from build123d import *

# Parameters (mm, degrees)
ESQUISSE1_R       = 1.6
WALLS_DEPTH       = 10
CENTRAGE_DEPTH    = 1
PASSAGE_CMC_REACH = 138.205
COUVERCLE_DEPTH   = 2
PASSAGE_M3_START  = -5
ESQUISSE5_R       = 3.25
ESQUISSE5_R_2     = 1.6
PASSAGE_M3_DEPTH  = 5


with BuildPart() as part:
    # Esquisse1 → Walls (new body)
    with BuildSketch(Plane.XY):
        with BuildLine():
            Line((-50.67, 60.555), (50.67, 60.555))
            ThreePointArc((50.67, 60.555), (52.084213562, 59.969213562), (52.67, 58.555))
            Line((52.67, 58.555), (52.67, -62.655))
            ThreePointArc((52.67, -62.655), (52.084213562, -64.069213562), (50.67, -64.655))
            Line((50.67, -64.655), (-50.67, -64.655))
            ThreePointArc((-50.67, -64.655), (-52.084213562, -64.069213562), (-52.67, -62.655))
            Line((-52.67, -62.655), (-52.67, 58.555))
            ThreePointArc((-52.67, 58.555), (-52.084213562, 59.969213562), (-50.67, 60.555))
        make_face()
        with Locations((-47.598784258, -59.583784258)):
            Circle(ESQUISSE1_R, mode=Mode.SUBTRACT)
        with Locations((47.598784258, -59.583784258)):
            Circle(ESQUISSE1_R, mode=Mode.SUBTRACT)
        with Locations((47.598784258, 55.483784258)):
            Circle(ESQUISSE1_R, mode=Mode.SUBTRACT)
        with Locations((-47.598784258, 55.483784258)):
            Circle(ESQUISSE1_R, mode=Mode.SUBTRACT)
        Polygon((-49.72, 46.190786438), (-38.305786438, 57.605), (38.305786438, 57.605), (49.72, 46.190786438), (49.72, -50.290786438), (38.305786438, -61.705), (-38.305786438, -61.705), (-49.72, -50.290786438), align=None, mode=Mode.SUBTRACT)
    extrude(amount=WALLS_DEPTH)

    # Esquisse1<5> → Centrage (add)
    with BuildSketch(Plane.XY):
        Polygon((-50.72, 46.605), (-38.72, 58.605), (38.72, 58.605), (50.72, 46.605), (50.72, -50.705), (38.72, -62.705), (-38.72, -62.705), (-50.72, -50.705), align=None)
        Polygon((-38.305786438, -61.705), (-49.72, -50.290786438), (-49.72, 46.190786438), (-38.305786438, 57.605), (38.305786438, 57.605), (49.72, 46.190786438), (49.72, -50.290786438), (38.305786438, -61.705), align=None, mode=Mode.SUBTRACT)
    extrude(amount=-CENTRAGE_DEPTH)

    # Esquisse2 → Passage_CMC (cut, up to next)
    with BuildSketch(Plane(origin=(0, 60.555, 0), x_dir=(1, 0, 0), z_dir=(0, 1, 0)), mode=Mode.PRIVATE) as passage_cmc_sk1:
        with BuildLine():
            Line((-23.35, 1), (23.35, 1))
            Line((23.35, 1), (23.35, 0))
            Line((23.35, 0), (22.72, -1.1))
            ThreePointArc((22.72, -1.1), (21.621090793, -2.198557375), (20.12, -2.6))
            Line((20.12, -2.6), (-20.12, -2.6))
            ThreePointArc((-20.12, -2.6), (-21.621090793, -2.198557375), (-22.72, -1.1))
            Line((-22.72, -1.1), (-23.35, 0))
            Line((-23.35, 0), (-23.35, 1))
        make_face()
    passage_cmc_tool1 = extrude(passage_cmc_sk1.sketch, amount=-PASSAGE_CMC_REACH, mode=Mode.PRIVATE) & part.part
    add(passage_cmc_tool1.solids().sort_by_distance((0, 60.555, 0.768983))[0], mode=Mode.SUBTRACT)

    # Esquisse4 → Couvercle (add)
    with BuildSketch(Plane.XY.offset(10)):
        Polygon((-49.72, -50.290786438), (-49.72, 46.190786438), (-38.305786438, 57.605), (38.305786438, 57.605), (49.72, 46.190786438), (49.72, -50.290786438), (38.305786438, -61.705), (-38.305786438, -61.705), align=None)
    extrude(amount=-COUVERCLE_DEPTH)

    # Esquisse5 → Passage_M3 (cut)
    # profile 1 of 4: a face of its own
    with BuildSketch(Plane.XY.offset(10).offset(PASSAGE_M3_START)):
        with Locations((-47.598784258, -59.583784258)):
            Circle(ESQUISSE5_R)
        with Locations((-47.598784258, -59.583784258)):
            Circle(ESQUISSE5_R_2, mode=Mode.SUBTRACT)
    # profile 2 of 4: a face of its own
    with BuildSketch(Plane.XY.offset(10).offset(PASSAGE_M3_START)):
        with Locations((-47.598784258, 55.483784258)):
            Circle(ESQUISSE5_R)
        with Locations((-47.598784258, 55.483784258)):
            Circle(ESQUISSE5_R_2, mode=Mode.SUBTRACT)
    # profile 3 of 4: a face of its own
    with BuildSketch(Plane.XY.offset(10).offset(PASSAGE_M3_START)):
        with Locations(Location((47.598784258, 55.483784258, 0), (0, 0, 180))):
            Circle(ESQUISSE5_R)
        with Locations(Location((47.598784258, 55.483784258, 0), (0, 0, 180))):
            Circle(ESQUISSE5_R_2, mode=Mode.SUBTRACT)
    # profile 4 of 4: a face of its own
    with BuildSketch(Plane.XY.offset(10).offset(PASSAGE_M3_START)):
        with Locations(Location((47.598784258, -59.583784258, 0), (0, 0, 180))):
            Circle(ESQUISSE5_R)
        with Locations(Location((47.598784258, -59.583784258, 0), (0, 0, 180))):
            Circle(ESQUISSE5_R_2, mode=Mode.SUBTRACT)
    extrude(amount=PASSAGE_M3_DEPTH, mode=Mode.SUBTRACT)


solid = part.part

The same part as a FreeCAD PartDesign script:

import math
import FreeCAD as App
import Part
import Sketcher
from FreeCAD import Vector
Q = App.Units.Quantity

doc = App.newDocument("Part")
body = doc.addObject("PartDesign::Body", "Body")

# Sketch on XY plane
sketch1 = body.newObject("Sketcher::SketchObject", "Sketch")
sketch1.AttachmentSupport = (doc.getObject("XY_Plane"), [""])
sketch1.MapMode = "FlatFace"
sketch1.addGeometry([
    Part.LineSegment(Vector(50.7, 60.6, 0), Vector(-50.7, 60.6, 0)),  # 0
    Part.ArcOfCircle(Part.Circle(Vector(-50.7, 58.6, 0), Vector(0, 0, 1), 2), math.radians(90), math.radians(180)),  # 1
    Part.LineSegment(Vector(-52.7, 58.6, 0), Vector(-52.7, -62.7, 0)),  # 2
    Part.ArcOfCircle(Part.Circle(Vector(-50.7, -62.7, 0), Vector(0, 0, 1), 2), math.radians(-180), math.radians(-90)),  # 3
    Part.LineSegment(Vector(-50.7, -64.7, 0), Vector(50.7, -64.7, 0)),  # 4
    Part.ArcOfCircle(Part.Circle(Vector(50.7, -62.7, 0), Vector(0, 0, 1), 2), math.radians(-90), math.radians(0)),  # 5
    Part.LineSegment(Vector(52.7, -62.7, 0), Vector(52.7, 58.6, 0)),  # 6
    Part.ArcOfCircle(Part.Circle(Vector(50.7, 58.6, 0), Vector(0, 0, 1), 2), math.radians(0), math.radians(90)),  # 7
    Part.Circle(Vector(47.6, -59.6, 0), Vector(0, 0, 1), 1.6),  # 8
    Part.Circle(Vector(-47.6, -59.6, 0), Vector(0, 0, 1), 1.6),  # 9
    Part.Circle(Vector(47.6, 55.5, 0), Vector(0, 0, 1), 1.6),  # 10
    Part.LineSegment(Vector(-49.7, 46.2, 0), Vector(-38.3, 57.6, 0)),  # 11
    Part.LineSegment(Vector(-38.3, 57.6, 0), Vector(38.3, 57.6, 0)),  # 12
    Part.LineSegment(Vector(38.3, 57.6, 0), Vector(49.7, 46.2, 0)),  # 13
    Part.LineSegment(Vector(49.7, 46.2, 0), Vector(49.7, -50.3, 0)),  # 14
    Part.LineSegment(Vector(49.7, -50.3, 0), Vector(38.3, -61.7, 0)),  # 15
    Part.LineSegment(Vector(38.3, -61.7, 0), Vector(-38.3, -61.7, 0)),  # 16
    Part.LineSegment(Vector(-38.3, -61.7, 0), Vector(-49.7, -50.3, 0)),  # 17
    Part.LineSegment(Vector(-49.7, -50.3, 0), Vector(-49.7, 46.2, 0)),  # 18
    Part.Circle(Vector(-47.6, 55.5, 0), Vector(0, 0, 1), 1.6),  # 19
], False)
sketch1.addConstraint([
    Sketcher.Constraint("Tangent", 0, 2, 1, 1),
    Sketcher.Constraint("Tangent", 1, 2, 2, 1),
    Sketcher.Constraint("Tangent", 2, 2, 3, 1),
    Sketcher.Constraint("Tangent", 3, 2, 4, 1),
    Sketcher.Constraint("Tangent", 4, 2, 5, 1),
    Sketcher.Constraint("Tangent", 5, 2, 6, 1),
    Sketcher.Constraint("Tangent", 6, 2, 7, 1),
    Sketcher.Constraint("Tangent", 7, 2, 0, 1),
    Sketcher.Constraint("Coincident", 11, 2, 12, 1),
    Sketcher.Constraint("Coincident", 12, 2, 13, 1),
    Sketcher.Constraint("Coincident", 13, 2, 14, 1),
    Sketcher.Constraint("Coincident", 14, 2, 15, 1),
    Sketcher.Constraint("Coincident", 15, 2, 16, 1),
    Sketcher.Constraint("Coincident", 16, 2, 17, 1),
    Sketcher.Constraint("Coincident", 17, 2, 18, 1),
    Sketcher.Constraint("Coincident", 18, 2, 11, 1),
    Sketcher.Constraint("Horizontal", 0),
    Sketcher.Constraint("Vertical", 2),
    Sketcher.Constraint("Horizontal", 4),
    Sketcher.Constraint("Vertical", 6),
    Sketcher.Constraint("Horizontal", 12),
    Sketcher.Constraint("Vertical", 14),
    Sketcher.Constraint("Horizontal", 16),
    Sketcher.Constraint("Vertical", 18),
    Sketcher.Constraint("Equal", 1, 3),
    Sketcher.Constraint("Equal", 3, 5),
    Sketcher.Constraint("Equal", 5, 7),
    Sketcher.Constraint("Equal", 8, 9),
    Sketcher.Constraint("Equal", 9, 10),
    Sketcher.Constraint("Equal", 10, 19),
    Sketcher.Constraint("Symmetric", 8, 3, 9, 3, -2),
    Sketcher.Constraint("Symmetric", 10, 3, 19, 3, -2),
    Sketcher.Constraint("Symmetric", 14, 2, 17, 2, -2),
    Sketcher.Constraint("Perpendicular", 11, 13),
    Sketcher.Constraint("Perpendicular", 13, 15),
    Sketcher.Constraint("Perpendicular", 15, 17),
    Sketcher.Constraint("Horizontal", 13, 2, 18, 2),
    Sketcher.Constraint("Vertical", 8, 3, 10, 3),
    Sketcher.Constraint("Vertical", 12, 2, 15, 2),
    Sketcher.Constraint("Vertical", 11, 2, 16, 2),
    Sketcher.Constraint("Radius", 1, Q("2 mm")),
    Sketcher.Constraint("Diameter", 8, Q("3.2 mm")),
    Sketcher.Constraint("DistanceX", 0, 2, 0, 1, Q("101.34 mm")),
    Sketcher.Constraint("DistanceY", 2, 2, 2, 1, Q("121.21 mm")),
    Sketcher.Constraint("DistanceX", 1, 3, -1, 1, Q("50.67 mm")),
    Sketcher.Constraint("DistanceX", -1, 1, 13, 2, Q("49.72 mm")),
    Sketcher.Constraint("DistanceY", 11, 2, 1, 3, Q("0.95 mm")),
    Sketcher.Constraint("DistanceY", 5, 3, 15, 2, Q("0.95 mm")),
    Sketcher.Constraint("DistanceY", -1, 1, 1, 3, Q("58.555 mm")),
    Sketcher.Constraint("DistanceX", 12, 1, 12, 2, Q("76.611573 mm")),
    Sketcher.Constraint("DistanceX", 9, 3, 8, 3, Q("95.197569 mm")),
    Sketcher.Constraint("DistanceY", 8, 3, 10, 3, Q("115.067569 mm")),
    Sketcher.Constraint("DistanceY", 8, 3, -1, 1, Q("59.583784 mm")),
])
pad1 = body.newObject("PartDesign::Pad", "Pad")
pad1.Profile = sketch1
pad1.Length = 10

# Sketch on XY plane
sketch2 = body.newObject("Sketcher::SketchObject", "Sketch001")
sketch2.AttachmentSupport = (doc.getObject("XY_Plane"), [""])
sketch2.MapMode = "FlatFace"
sketch2.addGeometry([
    Part.LineSegment(Vector(-39, 59, 0), Vector(-51, 47, 0)),  # 0
    Part.LineSegment(Vector(-51, 47, 0), Vector(-51, -51, 0)),  # 1
    Part.LineSegment(Vector(-51, -51, 0), Vector(-39, -63, 0)),  # 2
    Part.LineSegment(Vector(-39, -63, 0), Vector(39, -63, 0)),  # 3
    Part.LineSegment(Vector(39, -63, 0), Vector(51, -51, 0)),  # 4
    Part.LineSegment(Vector(51, -51, 0), Vector(51, 47, 0)),  # 5
    Part.LineSegment(Vector(51, 47, 0), Vector(39, 59, 0)),  # 6
    Part.LineSegment(Vector(39, 59, 0), Vector(-39, 59, 0)),  # 7
    Part.LineSegment(Vector(-38, -62, 0), Vector(-50, -50, 0)),  # 8
    Part.LineSegment(Vector(-50, -50, 0), Vector(-50, 46, 0)),  # 9
    Part.LineSegment(Vector(-50, 46, 0), Vector(-38, 58, 0)),  # 10
    Part.LineSegment(Vector(-38, 58, 0), Vector(38, 58, 0)),  # 11
    Part.LineSegment(Vector(38, 58, 0), Vector(50, 46, 0)),  # 12
    Part.LineSegment(Vector(50, 46, 0), Vector(50, -50, 0)),  # 13
    Part.LineSegment(Vector(50, -50, 0), Vector(38, -62, 0)),  # 14
    Part.LineSegment(Vector(38, -62, 0), Vector(-38, -62, 0)),  # 15
], False)
sketch2.addConstraint([
    Sketcher.Constraint("Coincident", 0, 2, 1, 1),
    Sketcher.Constraint("Coincident", 1, 2, 2, 1),
    Sketcher.Constraint("Coincident", 2, 2, 3, 1),
    Sketcher.Constraint("Coincident", 3, 2, 4, 1),
    Sketcher.Constraint("Coincident", 4, 2, 5, 1),
    Sketcher.Constraint("Coincident", 5, 2, 6, 1),
    Sketcher.Constraint("Coincident", 6, 2, 7, 1),
    Sketcher.Constraint("Coincident", 7, 2, 0, 1),
    Sketcher.Constraint("Coincident", 8, 2, 9, 1),
    Sketcher.Constraint("Coincident", 9, 2, 10, 1),
    Sketcher.Constraint("Coincident", 10, 2, 11, 1),
    Sketcher.Constraint("Coincident", 11, 2, 12, 1),
    Sketcher.Constraint("Coincident", 12, 2, 13, 1),
    Sketcher.Constraint("Coincident", 13, 2, 14, 1),
    Sketcher.Constraint("Coincident", 14, 2, 15, 1),
    Sketcher.Constraint("Coincident", 15, 2, 8, 1),
    Sketcher.Constraint("Vertical", 1),
    Sketcher.Constraint("Horizontal", 3),
    Sketcher.Constraint("Vertical", 5),
    Sketcher.Constraint("Horizontal", 7),
    Sketcher.Constraint("Vertical", 9),
    Sketcher.Constraint("Horizontal", 11),
    Sketcher.Constraint("Vertical", 13),
    Sketcher.Constraint("Horizontal", 15),
    Sketcher.Constraint("Symmetric", 1, 2, 4, 2, -2),
    Sketcher.Constraint("Symmetric", 9, 2, 12, 2, -2),
    Sketcher.Constraint("Perpendicular", 0, 2),
    Sketcher.Constraint("Perpendicular", 2, 4),
    Sketcher.Constraint("Perpendicular", 4, 6),
    Sketcher.Constraint("Parallel", 6, 8),
    Sketcher.Constraint("Perpendicular", 8, 10),
    Sketcher.Constraint("Perpendicular", 10, 12),
    Sketcher.Constraint("Perpendicular", 12, 14),
    Sketcher.Constraint("Horizontal", 0, 2, 5, 2),
    Sketcher.Constraint("Horizontal", 8, 2, 13, 2),
    Sketcher.Constraint("Vertical", 3, 2, 6, 2),
    Sketcher.Constraint("Vertical", 2, 2, 7, 2),
    Sketcher.Constraint("Vertical", 11, 2, 14, 2),
    Sketcher.Constraint("DistanceX", 1, 2, 2, 2, Q("12 mm")),
    Sketcher.Constraint("DistanceX", 1, 2, 8, 2, Q("1 mm")),
    Sketcher.Constraint("DistanceY", 10, 2, 7, 2, Q("1 mm")),
    Sketcher.Constraint("DistanceY", 3, 2, 14, 2, Q("1 mm")),
    Sketcher.Constraint("DistanceX", 3, 1, 3, 2, Q("77.44 mm")),
    Sketcher.Constraint("DistanceY", 1, 2, 1, 1, Q("97.31 mm")),
    Sketcher.Constraint("DistanceY", -1, 1, 0, 2, Q("46.605 mm")),
    Sketcher.Constraint("DistanceX", 11, 1, 11, 2, Q("76.611573 mm")),
])
pad2 = body.newObject("PartDesign::Pad", "Pad001")
pad2.Profile = sketch2
pad2.Length = 1
pad2.Reversed = True

# Sketch on XZ plane
sketch3 = body.newObject("Sketcher::SketchObject", "Sketch002")
sketch3.AttachmentSupport = (doc.getObject("XZ_Plane"), [""])
sketch3.MapMode = "FlatFace"
sketch3.AttachmentOffset = App.Placement(Vector(0, 0, -60.555), App.Rotation())
sketch3.addGeometry([
    Part.LineSegment(Vector(23.4, -1, 0), Vector(-23.4, -1, 0)),  # 0
    Part.LineSegment(Vector(-23.4, -1, 0), Vector(-23.4, 0, 0)),  # 1
    Part.LineSegment(Vector(-23.4, 0, 0), Vector(-22.7, 1.1, 0)),  # 2
    Part.ArcOfCircle(Part.Circle(Vector(-20.1, -0.4, 0), Vector(0, 0, 1), 3), math.radians(90), math.radians(150)),  # 3
    Part.LineSegment(Vector(-20.1, 2.6, 0), Vector(20.1, 2.6, 0)),  # 4
    Part.ArcOfCircle(Part.Circle(Vector(20.1, -0.4, 0), Vector(0, 0, 1), 3), math.radians(30), math.radians(90)),  # 5
    Part.LineSegment(Vector(22.7, 1.1, 0), Vector(23.4, 0, 0)),  # 6
    Part.LineSegment(Vector(23.4, 0, 0), Vector(23.4, -1, 0)),  # 7
], False)
sketch3.addConstraint([
    Sketcher.Constraint("Coincident", 0, 2, 1, 1),
    Sketcher.Constraint("Coincident", 1, 2, 2, 1),
    Sketcher.Constraint("Coincident", 2, 2, 3, 2),
    Sketcher.Constraint("Coincident", 3, 1, 4, 1),
    Sketcher.Constraint("Coincident", 4, 2, 5, 2),
    Sketcher.Constraint("Coincident", 5, 1, 6, 1),
    Sketcher.Constraint("Coincident", 6, 2, 7, 1),
    Sketcher.Constraint("Coincident", 7, 2, 0, 1),
    Sketcher.Constraint("Horizontal", 0),
    Sketcher.Constraint("Vertical", 1),
    Sketcher.Constraint("Horizontal", 4),
    Sketcher.Constraint("Vertical", 7),
    Sketcher.Constraint("Equal", 3, 5),
    Sketcher.Constraint("Symmetric", 1, 2, 6, 2, -1, 1),
    Sketcher.Constraint("Symmetric", 2, 2, 5, 1, -2),
    Sketcher.Constraint("PointOnObject", 1, 2, -1),
    Sketcher.Constraint("Radius", 3, Q("3 mm")),
    Sketcher.Constraint("DistanceY", 1, 1, 1, 2, Q("1 mm")),
    Sketcher.Constraint("DistanceX", 0, 2, 0, 1, Q("46.7 mm")),
    Sketcher.Constraint("DistanceX", 4, 1, 4, 2, Q("40.24 mm")),
    Sketcher.Constraint("DistanceY", 3, 3, -1, 1, Q("0.399999 mm")),
    Sketcher.Constraint("DistanceY", -1, 1, 2, 2, Q("1.1 mm")),
    Sketcher.Constraint("DistanceX", 2, 2, 3, 1, Q("2.6 mm")),
    Sketcher.Constraint("DistanceX", 4, 2, 5, 1, Q("2.6 mm")),
])
pocket1 = body.newObject("PartDesign::Pocket", "Pocket")
pocket1.Profile = sketch3
pocket1.Type = "UpToFirst"
pocket1.Reversed = True

# Sketch on XY plane
sketch4 = body.newObject("Sketcher::SketchObject", "Sketch003")
sketch4.AttachmentSupport = (doc.getObject("XY_Plane"), [""])
sketch4.MapMode = "FlatFace"
sketch4.AttachmentOffset = App.Placement(Vector(0, 0, 10), App.Rotation())
sketch4.addGeometry([
    Part.LineSegment(Vector(-50, 46, 0), Vector(-50, -50, 0)),  # 0
    Part.LineSegment(Vector(-50, -50, 0), Vector(-38, -62, 0)),  # 1
    Part.LineSegment(Vector(-38, -62, 0), Vector(38, -62, 0)),  # 2
    Part.LineSegment(Vector(38, -62, 0), Vector(50, -50, 0)),  # 3
    Part.LineSegment(Vector(50, -50, 0), Vector(50, 46, 0)),  # 4
    Part.LineSegment(Vector(50, 46, 0), Vector(38, 58, 0)),  # 5
    Part.LineSegment(Vector(38, 58, 0), Vector(-38, 58, 0)),  # 6
    Part.LineSegment(Vector(-38, 58, 0), Vector(-50, 46, 0)),  # 7
], False)
sketch4.addConstraint([
    Sketcher.Constraint("Coincident", 0, 2, 1, 1),
    Sketcher.Constraint("Coincident", 1, 2, 2, 1),
    Sketcher.Constraint("Coincident", 2, 2, 3, 1),
    Sketcher.Constraint("Coincident", 3, 2, 4, 1),
    Sketcher.Constraint("Coincident", 4, 2, 5, 1),
    Sketcher.Constraint("Coincident", 5, 2, 6, 1),
    Sketcher.Constraint("Coincident", 6, 2, 7, 1),
    Sketcher.Constraint("Coincident", 7, 2, 0, 1),
    Sketcher.Constraint("Vertical", 0),
    Sketcher.Constraint("Horizontal", 2),
    Sketcher.Constraint("Vertical", 4),
    Sketcher.Constraint("Horizontal", 6),
    Sketcher.Constraint("Symmetric", 0, 2, 3, 2, -2),
    Sketcher.Constraint("Perpendicular", 1, 3),
    Sketcher.Constraint("Perpendicular", 3, 5),
    Sketcher.Constraint("Perpendicular", 5, 7),
    Sketcher.Constraint("Horizontal", 4, 2, 7, 2),
    Sketcher.Constraint("Vertical", 2, 2, 5, 2),
    Sketcher.Constraint("Vertical", 1, 2, 6, 2),
    Sketcher.Constraint("DistanceX", 0, 2, -1, 1, Q("49.72 mm")),
    Sketcher.Constraint("DistanceY", 2, 2, 5, 2, Q("119.31 mm")),
    Sketcher.Constraint("DistanceY", 1, 2, -1, 1, Q("61.705 mm")),
    Sketcher.Constraint("DistanceX", 2, 1, 2, 2, Q("76.611573 mm")),
])
pad3 = body.newObject("PartDesign::Pad", "Pad002")
pad3.Profile = sketch4
pad3.Length = 2
pad3.Reversed = True

# Sketch on XY plane
sketch5 = body.newObject("Sketcher::SketchObject", "Sketch004")
sketch5.AttachmentSupport = (doc.getObject("XY_Plane"), [""])
sketch5.MapMode = "FlatFace"
sketch5.AttachmentOffset = App.Placement(Vector(0, 0, 5), App.Rotation())
sketch5.addGeometry([
    Part.Circle(Vector(-47.6, -59.6, 0), Vector(0, 0, 1), 3.2),  # 0
    Part.Circle(Vector(-47.6, -59.6, 0), Vector(0, 0, 1), 1.6),  # 1
    Part.Circle(Vector(-47.6, 55.5, 0), Vector(0, 0, 1), 3.2),  # 2
    Part.Circle(Vector(-47.6, 55.5, 0), Vector(0, 0, 1), 1.6),  # 3
    Part.Circle(Vector(47.6, 55.5, 0), Vector(0, 0, 1), 3.2),  # 4
    Part.Circle(Vector(47.6, 55.5, 0), Vector(0, 0, 1), 1.6),  # 5
    Part.Circle(Vector(47.6, -59.6, 0), Vector(0, 0, 1), 3.2),  # 6
    Part.Circle(Vector(47.6, -59.6, 0), Vector(0, 0, 1), 1.6),  # 7
], False)
sketch5.addConstraint([
    Sketcher.Constraint("Coincident", 1, 3, 0, 3),
    Sketcher.Constraint("Coincident", 3, 3, 2, 3),
    Sketcher.Constraint("Coincident", 5, 3, 4, 3),
    Sketcher.Constraint("Coincident", 7, 3, 6, 3),
    Sketcher.Constraint("Equal", 0, 2),
    Sketcher.Constraint("Equal", 1, 3),
    Sketcher.Constraint("Equal", 2, 4),
    Sketcher.Constraint("Equal", 3, 5),
    Sketcher.Constraint("Equal", 4, 6),
    Sketcher.Constraint("Equal", 5, 7),
    Sketcher.Constraint("Symmetric", 2, 3, 4, 3, -2),
    Sketcher.Constraint("Symmetric", 0, 3, 6, 3, -2),
    Sketcher.Constraint("Vertical", 1, 3, 2, 3),
    Sketcher.Constraint("Diameter", 0, Q("6.5 mm")),
    Sketcher.Constraint("Diameter", 1, Q("3.2 mm")),
    Sketcher.Constraint("DistanceY", 0, 3, 2, 3, Q("115.067569 mm")),
    Sketcher.Constraint("DistanceX", 2, 3, 4, 3, Q("95.197569 mm")),
    Sketcher.Constraint("DistanceY", 0, 3, -1, 1, Q("59.583784 mm")),
])
pocket2 = body.newObject("PartDesign::Pocket", "Pocket001")
pocket2.Profile = sketch5
pocket2.Length = 5
pocket2.Reversed = True

doc.recompute()
